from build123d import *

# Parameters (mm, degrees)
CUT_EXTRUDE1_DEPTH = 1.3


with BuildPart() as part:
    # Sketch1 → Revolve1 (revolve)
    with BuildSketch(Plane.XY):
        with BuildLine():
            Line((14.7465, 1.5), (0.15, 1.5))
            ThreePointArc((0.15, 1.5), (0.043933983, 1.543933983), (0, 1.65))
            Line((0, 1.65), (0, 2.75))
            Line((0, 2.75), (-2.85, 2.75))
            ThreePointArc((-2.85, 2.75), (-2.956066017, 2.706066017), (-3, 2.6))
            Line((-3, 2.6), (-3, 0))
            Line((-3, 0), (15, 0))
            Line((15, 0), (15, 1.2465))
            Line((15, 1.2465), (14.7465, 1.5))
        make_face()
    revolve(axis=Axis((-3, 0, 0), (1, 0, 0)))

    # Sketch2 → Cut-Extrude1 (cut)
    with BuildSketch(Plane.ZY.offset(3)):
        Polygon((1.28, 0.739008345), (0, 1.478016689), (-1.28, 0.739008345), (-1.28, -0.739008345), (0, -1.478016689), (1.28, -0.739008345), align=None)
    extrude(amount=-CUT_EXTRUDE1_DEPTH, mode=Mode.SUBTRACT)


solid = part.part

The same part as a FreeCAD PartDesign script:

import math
import FreeCAD as App
import Part
import Sketcher
Q = App.Units.Quantity

doc = App.newDocument("Part")
body = doc.addObject("PartDesign::Body", "Body")

# Sketch on XY plane
sketch1 = body.newObject("Sketcher::SketchObject", "Sketch")
sketch1.AttachmentSupport = (doc.getObject("XY_Plane"), [""])
sketch1.MapMode = "FlatFace"
sketch1.addGeometry([
    Part.LineSegment(App.Vector(14.7465, 1.5, 0), App.Vector(0.15, 1.5, 0)),  # 0
    Part.ArcOfCircle(Part.Circle(App.Vector(0.15, 1.65, 0), App.Vector(0, 0, 1), 0.15), math.radians(-180), math.radians(-90)),  # 1
    Part.LineSegment(App.Vector(0, 1.65, 0), App.Vector(0, 2.75, 0)),  # 2
    Part.LineSegment(App.Vector(0, 2.75, 0), App.Vector(-2.85, 2.75, 0)),  # 3
    Part.ArcOfCircle(Part.Circle(App.Vector(-2.85, 2.6, 0), App.Vector(0, 0, 1), 0.15), math.radians(90), math.radians(180)),  # 4
    Part.LineSegment(App.Vector(-3, 2.6, 0), App.Vector(-3, 0, 0)),  # 5
    Part.LineSegment(App.Vector(-3, 0, 0), App.Vector(15, 0, 0)),  # 6
    Part.LineSegment(App.Vector(15, 0, 0), App.Vector(15, 1.2465, 0)),  # 7
    Part.LineSegment(App.Vector(15, 1.2465, 0), App.Vector(14.7465, 1.5, 0)),  # 8
], False)
sketch1.addConstraint([
    Sketcher.Constraint("Tangent", 0, 2, 1, 2),
    Sketcher.Constraint("Tangent", 1, 1, 2, 1),
    Sketcher.Constraint("Coincident", 2, 2, 3, 1),
    Sketcher.Constraint("Tangent", 3, 2, 4, 1),
    Sketcher.Constraint("Tangent", 4, 2, 5, 1),
    Sketcher.Constraint("Coincident", 5, 2, 6, 1),
    Sketcher.Constraint("Coincident", 6, 2, 7, 1),
    Sketcher.Constraint("Coincident", 7, 2, 8, 1),
    Sketcher.Constraint("Coincident", 8, 2, 0, 1),
    Sketcher.Constraint("Horizontal", 0),
    Sketcher.Constraint("Vertical", 2),
    Sketcher.Constraint("Horizontal", 3),
    Sketcher.Constraint("Vertical", 5),
    Sketcher.Constraint("Horizontal", 6),
    Sketcher.Constraint("Vertical", 7),
    Sketcher.Constraint("Equal", 1, 4),
    Sketcher.Constraint("PointOnObject", 1, 1, -2),
    Sketcher.Constraint("PointOnObject", 5, 2, -1),
    Sketcher.Constraint("DistanceX", 6, 1, 6, 2, Q("18 mm")),
    Sketcher.Constraint("Angle", 8, Q("135 deg")),
    Sketcher.Constraint("Radius", 1, Q("0.15 mm")),
    Sketcher.Constraint("DistanceY", 2, 1, 2, 2, Q("1.1 mm")),
    Sketcher.Constraint("DistanceY", 5, 2, 5, 1, Q("2.6 mm")),
    Sketcher.Constraint("DistanceX", 4, 2, -1, 1, Q("3 mm")),
    Sketcher.Constraint("DistanceX", 0, 2, 0, 1, Q("14.5965 mm")),
])
revolution = body.newObject("PartDesign::Revolution", "Revolution")
revolution.Profile = sketch1
revolution.ReferenceAxis = (sketch1, ["H_Axis"])
revolution.Angle = 360

# Sketch on YZ plane
sketch2 = body.newObject("Sketcher::SketchObject", "Sketch001")
sketch2.AttachmentSupport = (doc.getObject("YZ_Plane"), [""])
sketch2.MapMode = "FlatFace"
sketch2.AttachmentOffset = App.Placement(App.Vector(0, 0, -3), App.Rotation())
sketch2.addGeometry([
    Part.LineSegment(App.Vector(0.739008, 1.28, 0), App.Vector(1.478017, 0, 0)),  # 0
    Part.LineSegment(App.Vector(1.478017, 0, 0), App.Vector(0.739008, -1.28, 0)),  # 1
    Part.LineSegment(App.Vector(0.739008, -1.28, 0), App.Vector(-0.739008, -1.28, 0)),  # 2
    Part.LineSegment(App.Vector(-0.739008, -1.28, 0), App.Vector(-1.478017, 0, 0)),  # 3
    Part.LineSegment(App.Vector(-1.478017, 0, 0), App.Vector(-0.739008, 1.28, 0)),  # 4
    Part.LineSegment(App.Vector(-0.739008, 1.28, 0), App.Vector(0.739008, 1.28, 0)),  # 5
], False)
sketch2.addConstraint([
    Sketcher.Constraint("Coincident", 0, 2, 1, 1),
    Sketcher.Constraint("Coincident", 1, 2, 2, 1),
    Sketcher.Constraint("Coincident", 2, 2, 3, 1),
    Sketcher.Constraint("Coincident", 3, 2, 4, 1),
    Sketcher.Constraint("Coincident", 4, 2, 5, 1),
    Sketcher.Constraint("Coincident", 5, 2, 0, 1),
    Sketcher.Constraint("Horizontal", 2),
    Sketcher.Constraint("Horizontal", 5),
    Sketcher.Constraint("Symmetric", 0, 2, 3, 2, -1, 1),
    Sketcher.Constraint("Symmetric", 1, 2, 4, 2, -1, 1),
    Sketcher.Constraint("PointOnObject", 0, 2, -1),
    Sketcher.Constraint("Parallel", 0, 3),
    Sketcher.Constraint("Vertical", 2, 2, 4, 2),
    Sketcher.Constraint("Angle", 0, Q("-60 deg")),
    Sketcher.Constraint("DistanceY", 1, 2, -1, 1, Q("1.28 mm")),
    Sketcher.Constraint("DistanceX", 2, 2, 2, 1, Q("1.478017 mm")),
])
pocket1 = body.newObject("PartDesign::Pocket", "Pocket")
pocket1.Profile = sketch2
pocket1.Length = 1.3
pocket1.Reversed = True

doc.recompute()
